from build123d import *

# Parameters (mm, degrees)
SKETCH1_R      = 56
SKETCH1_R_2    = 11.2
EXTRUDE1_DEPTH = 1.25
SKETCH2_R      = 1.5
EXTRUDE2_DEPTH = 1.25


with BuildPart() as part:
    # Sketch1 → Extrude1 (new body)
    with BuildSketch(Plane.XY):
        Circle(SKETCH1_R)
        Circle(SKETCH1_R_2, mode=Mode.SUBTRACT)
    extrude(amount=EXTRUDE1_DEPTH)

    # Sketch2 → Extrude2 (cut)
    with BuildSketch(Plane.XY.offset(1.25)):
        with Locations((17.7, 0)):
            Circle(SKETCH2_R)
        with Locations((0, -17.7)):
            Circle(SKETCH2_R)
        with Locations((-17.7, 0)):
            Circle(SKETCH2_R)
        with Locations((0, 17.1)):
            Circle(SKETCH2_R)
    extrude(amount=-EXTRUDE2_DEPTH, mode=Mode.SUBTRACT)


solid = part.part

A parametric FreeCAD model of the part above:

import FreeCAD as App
import Part
import Sketcher
from FreeCAD import Vector

doc = App.newDocument("Part")
body = doc.addObject("PartDesign::Body", "Body")

# Sketch on XY plane
sketch1 = body.newObject("Sketcher::SketchObject", "Sketch")
sketch1.AttachmentSupport = (doc.getObject("XY_Plane"), [""])
sketch1.MapMode = "FlatFace"
sketch1.addGeometry(Part.Circle(Vector(0, 0, 0), Vector(0, 0, 1), 56), False)
sketch1.addGeometry(Part.Circle(Vector(0, 0, 0), Vector(0, 0, 1), 11.2), False)
sketch1.addConstraint(Sketcher.Constraint("Coincident", 0, 3, -1, 1))
sketch1.addConstraint(Sketcher.Constraint("Coincident", 1, 3, -1, 1))
sketch1.addConstraint(Sketcher.Constraint("Diameter", 0, 112.0))
sketch1.addConstraint(Sketcher.Constraint("Diameter", 1, 22.4))
pad1 = body.newObject("PartDesign::Pad", "Pad")
pad1.Profile = sketch1
pad1.Length = 1.25

# Sketch on XY plane
sketch2 = body.newObject("Sketcher::SketchObject", "Sketch001")
sketch2.AttachmentSupport = (doc.getObject("XY_Plane"), [""])
sketch2.MapMode = "FlatFace"
sketch2.AttachmentOffset = App.Placement(Vector(0, 0, 1.25), App.Rotation())
sketch2.addGeometry(Part.Circle(Vector(17.7, 0, 0), Vector(0, 0, 1), 1.5), False)
sketch2.addGeometry(Part.Circle(Vector(0, -17.7, 0), Vector(0, 0, 1), 1.5), False)
sketch2.addGeometry(Part.Circle(Vector(-17.7, 0, 0), Vector(0, 0, 1), 1.5), False)
sketch2.addGeometry(Part.Circle(Vector(0, 17.1, 0), Vector(0, 0, 1), 1.5), False)
sketch2.addConstraint(Sketcher.Constraint("Equal", 0, 1))
sketch2.addConstraint(Sketcher.Constraint("Equal", 1, 2))
sketch2.addConstraint(Sketcher.Constraint("Equal", 2, 3))
sketch2.addConstraint(Sketcher.Constraint("Symmetric", 0, 3, 2, 3, -1, 1))
sketch2.addConstraint(Sketcher.Constraint("PointOnObject", 0, 3, -1))
sketch2.addConstraint(Sketcher.Constraint("PointOnObject", 1, 3, -2))
sketch2.addConstraint(Sketcher.Constraint("PointOnObject", 3, 3, -2))
sketch2.addConstraint(Sketcher.Constraint("Diameter", 0, 3.0))
sketch2.addConstraint(Sketcher.Constraint("DistanceX", -1, 1, 0, 3, 17.7))
sketch2.addConstraint(Sketcher.Constraint("DistanceY", 1, 3, -1, 1, 17.7))
sketch2.addConstraint(Sketcher.Constraint("DistanceY", -1, 1, 3, 3, 17.1))
pocket1 = body.newObject("PartDesign::Pocket", "Pocket")
pocket1.Profile = sketch2
pocket1.Length = 1.25

doc.recompute()
